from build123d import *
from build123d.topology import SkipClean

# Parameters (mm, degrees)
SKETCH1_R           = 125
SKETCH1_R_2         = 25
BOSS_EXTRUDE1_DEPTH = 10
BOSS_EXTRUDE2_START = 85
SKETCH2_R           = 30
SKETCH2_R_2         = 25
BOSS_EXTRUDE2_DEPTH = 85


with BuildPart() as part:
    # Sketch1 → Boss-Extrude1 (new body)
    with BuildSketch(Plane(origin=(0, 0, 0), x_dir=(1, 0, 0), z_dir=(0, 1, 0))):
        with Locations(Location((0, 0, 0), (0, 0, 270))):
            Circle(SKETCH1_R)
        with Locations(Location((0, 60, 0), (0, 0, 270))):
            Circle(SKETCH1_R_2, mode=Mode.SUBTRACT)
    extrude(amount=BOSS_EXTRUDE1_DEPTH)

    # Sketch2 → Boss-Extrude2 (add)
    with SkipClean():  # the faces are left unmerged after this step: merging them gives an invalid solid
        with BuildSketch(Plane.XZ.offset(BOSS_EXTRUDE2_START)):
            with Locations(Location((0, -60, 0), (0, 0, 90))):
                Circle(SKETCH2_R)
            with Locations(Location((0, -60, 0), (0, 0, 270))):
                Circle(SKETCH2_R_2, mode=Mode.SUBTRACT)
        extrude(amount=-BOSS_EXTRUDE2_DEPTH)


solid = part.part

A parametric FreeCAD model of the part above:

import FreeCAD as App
import Part
import Sketcher

V = App.Vector
Q = App.Units.Quantity

doc = App.newDocument("Part")
body = doc.addObject("PartDesign::Body", "Body")

# Sketch on XZ plane
sketch1 = body.newObject("Sketcher::SketchObject", "Sketch")
sketch1.AttachmentSupport = (doc.getObject("XZ_Plane"), [""])
sketch1.MapMode = "FlatFace"
sketch1.addGeometry(Part.Circle(V(0, 0, 0), V(0, 0, 1), 125), False)
sketch1.addGeometry(Part.Circle(V(0, -60, 0), V(0, 0, 1), 25), False)
sketch1.addConstraint(Sketcher.Constraint("Coincident", 0, 3, -1, 1))
sketch1.addConstraint(Sketcher.Constraint("PointOnObject", 1, 3, -2))
sketch1.addConstraint(Sketcher.Constraint("Diameter", 0, Q("250 mm")))
sketch1.addConstraint(Sketcher.Constraint("Diameter", 1, Q("50 mm")))
sketch1.addConstraint(Sketcher.Constraint("DistanceY", 1, 3, -1, 1, Q("60 mm")))
pad1 = body.newObject("PartDesign::Pad", "Pad")
pad1.Profile = sketch1
pad1.Length = 10
pad1.Reversed = True

# Sketch on XZ plane
sketch2 = body.newObject("Sketcher::SketchObject", "Sketch001")
sketch2.AttachmentSupport = (doc.getObject("XZ_Plane"), [""])
sketch2.MapMode = "FlatFace"
sketch2.AttachmentOffset = App.Placement(V(0, 0, 85), App.Rotation())
sketch2.addGeometry(Part.Circle(V(0, -60, 0), V(0, 0, 1), 30), False)
sketch2.addGeometry(Part.Circle(V(0, -60, 0), V(0, 0, 1), 25), False)
sketch2.addConstraint(Sketcher.Constraint("Coincident", 1, 3, 0, 3))
sketch2.addConstraint(Sketcher.Constraint("PointOnObject", 0, 3, -2))
sketch2.addConstraint(Sketcher.Constraint("Diameter", 0, Q("60 mm")))
sketch2.addConstraint(Sketcher.Constraint("Diameter", 1, Q("50 mm")))
sketch2.addConstraint(Sketcher.Constraint("DistanceY", 0, 3, -1, 1, Q("60 mm")))
pad2 = body.newObject("PartDesign::Pad", "Pad001")
pad2.Profile = sketch2
pad2.Length = 85
pad2.Reversed = True

doc.recompute()
